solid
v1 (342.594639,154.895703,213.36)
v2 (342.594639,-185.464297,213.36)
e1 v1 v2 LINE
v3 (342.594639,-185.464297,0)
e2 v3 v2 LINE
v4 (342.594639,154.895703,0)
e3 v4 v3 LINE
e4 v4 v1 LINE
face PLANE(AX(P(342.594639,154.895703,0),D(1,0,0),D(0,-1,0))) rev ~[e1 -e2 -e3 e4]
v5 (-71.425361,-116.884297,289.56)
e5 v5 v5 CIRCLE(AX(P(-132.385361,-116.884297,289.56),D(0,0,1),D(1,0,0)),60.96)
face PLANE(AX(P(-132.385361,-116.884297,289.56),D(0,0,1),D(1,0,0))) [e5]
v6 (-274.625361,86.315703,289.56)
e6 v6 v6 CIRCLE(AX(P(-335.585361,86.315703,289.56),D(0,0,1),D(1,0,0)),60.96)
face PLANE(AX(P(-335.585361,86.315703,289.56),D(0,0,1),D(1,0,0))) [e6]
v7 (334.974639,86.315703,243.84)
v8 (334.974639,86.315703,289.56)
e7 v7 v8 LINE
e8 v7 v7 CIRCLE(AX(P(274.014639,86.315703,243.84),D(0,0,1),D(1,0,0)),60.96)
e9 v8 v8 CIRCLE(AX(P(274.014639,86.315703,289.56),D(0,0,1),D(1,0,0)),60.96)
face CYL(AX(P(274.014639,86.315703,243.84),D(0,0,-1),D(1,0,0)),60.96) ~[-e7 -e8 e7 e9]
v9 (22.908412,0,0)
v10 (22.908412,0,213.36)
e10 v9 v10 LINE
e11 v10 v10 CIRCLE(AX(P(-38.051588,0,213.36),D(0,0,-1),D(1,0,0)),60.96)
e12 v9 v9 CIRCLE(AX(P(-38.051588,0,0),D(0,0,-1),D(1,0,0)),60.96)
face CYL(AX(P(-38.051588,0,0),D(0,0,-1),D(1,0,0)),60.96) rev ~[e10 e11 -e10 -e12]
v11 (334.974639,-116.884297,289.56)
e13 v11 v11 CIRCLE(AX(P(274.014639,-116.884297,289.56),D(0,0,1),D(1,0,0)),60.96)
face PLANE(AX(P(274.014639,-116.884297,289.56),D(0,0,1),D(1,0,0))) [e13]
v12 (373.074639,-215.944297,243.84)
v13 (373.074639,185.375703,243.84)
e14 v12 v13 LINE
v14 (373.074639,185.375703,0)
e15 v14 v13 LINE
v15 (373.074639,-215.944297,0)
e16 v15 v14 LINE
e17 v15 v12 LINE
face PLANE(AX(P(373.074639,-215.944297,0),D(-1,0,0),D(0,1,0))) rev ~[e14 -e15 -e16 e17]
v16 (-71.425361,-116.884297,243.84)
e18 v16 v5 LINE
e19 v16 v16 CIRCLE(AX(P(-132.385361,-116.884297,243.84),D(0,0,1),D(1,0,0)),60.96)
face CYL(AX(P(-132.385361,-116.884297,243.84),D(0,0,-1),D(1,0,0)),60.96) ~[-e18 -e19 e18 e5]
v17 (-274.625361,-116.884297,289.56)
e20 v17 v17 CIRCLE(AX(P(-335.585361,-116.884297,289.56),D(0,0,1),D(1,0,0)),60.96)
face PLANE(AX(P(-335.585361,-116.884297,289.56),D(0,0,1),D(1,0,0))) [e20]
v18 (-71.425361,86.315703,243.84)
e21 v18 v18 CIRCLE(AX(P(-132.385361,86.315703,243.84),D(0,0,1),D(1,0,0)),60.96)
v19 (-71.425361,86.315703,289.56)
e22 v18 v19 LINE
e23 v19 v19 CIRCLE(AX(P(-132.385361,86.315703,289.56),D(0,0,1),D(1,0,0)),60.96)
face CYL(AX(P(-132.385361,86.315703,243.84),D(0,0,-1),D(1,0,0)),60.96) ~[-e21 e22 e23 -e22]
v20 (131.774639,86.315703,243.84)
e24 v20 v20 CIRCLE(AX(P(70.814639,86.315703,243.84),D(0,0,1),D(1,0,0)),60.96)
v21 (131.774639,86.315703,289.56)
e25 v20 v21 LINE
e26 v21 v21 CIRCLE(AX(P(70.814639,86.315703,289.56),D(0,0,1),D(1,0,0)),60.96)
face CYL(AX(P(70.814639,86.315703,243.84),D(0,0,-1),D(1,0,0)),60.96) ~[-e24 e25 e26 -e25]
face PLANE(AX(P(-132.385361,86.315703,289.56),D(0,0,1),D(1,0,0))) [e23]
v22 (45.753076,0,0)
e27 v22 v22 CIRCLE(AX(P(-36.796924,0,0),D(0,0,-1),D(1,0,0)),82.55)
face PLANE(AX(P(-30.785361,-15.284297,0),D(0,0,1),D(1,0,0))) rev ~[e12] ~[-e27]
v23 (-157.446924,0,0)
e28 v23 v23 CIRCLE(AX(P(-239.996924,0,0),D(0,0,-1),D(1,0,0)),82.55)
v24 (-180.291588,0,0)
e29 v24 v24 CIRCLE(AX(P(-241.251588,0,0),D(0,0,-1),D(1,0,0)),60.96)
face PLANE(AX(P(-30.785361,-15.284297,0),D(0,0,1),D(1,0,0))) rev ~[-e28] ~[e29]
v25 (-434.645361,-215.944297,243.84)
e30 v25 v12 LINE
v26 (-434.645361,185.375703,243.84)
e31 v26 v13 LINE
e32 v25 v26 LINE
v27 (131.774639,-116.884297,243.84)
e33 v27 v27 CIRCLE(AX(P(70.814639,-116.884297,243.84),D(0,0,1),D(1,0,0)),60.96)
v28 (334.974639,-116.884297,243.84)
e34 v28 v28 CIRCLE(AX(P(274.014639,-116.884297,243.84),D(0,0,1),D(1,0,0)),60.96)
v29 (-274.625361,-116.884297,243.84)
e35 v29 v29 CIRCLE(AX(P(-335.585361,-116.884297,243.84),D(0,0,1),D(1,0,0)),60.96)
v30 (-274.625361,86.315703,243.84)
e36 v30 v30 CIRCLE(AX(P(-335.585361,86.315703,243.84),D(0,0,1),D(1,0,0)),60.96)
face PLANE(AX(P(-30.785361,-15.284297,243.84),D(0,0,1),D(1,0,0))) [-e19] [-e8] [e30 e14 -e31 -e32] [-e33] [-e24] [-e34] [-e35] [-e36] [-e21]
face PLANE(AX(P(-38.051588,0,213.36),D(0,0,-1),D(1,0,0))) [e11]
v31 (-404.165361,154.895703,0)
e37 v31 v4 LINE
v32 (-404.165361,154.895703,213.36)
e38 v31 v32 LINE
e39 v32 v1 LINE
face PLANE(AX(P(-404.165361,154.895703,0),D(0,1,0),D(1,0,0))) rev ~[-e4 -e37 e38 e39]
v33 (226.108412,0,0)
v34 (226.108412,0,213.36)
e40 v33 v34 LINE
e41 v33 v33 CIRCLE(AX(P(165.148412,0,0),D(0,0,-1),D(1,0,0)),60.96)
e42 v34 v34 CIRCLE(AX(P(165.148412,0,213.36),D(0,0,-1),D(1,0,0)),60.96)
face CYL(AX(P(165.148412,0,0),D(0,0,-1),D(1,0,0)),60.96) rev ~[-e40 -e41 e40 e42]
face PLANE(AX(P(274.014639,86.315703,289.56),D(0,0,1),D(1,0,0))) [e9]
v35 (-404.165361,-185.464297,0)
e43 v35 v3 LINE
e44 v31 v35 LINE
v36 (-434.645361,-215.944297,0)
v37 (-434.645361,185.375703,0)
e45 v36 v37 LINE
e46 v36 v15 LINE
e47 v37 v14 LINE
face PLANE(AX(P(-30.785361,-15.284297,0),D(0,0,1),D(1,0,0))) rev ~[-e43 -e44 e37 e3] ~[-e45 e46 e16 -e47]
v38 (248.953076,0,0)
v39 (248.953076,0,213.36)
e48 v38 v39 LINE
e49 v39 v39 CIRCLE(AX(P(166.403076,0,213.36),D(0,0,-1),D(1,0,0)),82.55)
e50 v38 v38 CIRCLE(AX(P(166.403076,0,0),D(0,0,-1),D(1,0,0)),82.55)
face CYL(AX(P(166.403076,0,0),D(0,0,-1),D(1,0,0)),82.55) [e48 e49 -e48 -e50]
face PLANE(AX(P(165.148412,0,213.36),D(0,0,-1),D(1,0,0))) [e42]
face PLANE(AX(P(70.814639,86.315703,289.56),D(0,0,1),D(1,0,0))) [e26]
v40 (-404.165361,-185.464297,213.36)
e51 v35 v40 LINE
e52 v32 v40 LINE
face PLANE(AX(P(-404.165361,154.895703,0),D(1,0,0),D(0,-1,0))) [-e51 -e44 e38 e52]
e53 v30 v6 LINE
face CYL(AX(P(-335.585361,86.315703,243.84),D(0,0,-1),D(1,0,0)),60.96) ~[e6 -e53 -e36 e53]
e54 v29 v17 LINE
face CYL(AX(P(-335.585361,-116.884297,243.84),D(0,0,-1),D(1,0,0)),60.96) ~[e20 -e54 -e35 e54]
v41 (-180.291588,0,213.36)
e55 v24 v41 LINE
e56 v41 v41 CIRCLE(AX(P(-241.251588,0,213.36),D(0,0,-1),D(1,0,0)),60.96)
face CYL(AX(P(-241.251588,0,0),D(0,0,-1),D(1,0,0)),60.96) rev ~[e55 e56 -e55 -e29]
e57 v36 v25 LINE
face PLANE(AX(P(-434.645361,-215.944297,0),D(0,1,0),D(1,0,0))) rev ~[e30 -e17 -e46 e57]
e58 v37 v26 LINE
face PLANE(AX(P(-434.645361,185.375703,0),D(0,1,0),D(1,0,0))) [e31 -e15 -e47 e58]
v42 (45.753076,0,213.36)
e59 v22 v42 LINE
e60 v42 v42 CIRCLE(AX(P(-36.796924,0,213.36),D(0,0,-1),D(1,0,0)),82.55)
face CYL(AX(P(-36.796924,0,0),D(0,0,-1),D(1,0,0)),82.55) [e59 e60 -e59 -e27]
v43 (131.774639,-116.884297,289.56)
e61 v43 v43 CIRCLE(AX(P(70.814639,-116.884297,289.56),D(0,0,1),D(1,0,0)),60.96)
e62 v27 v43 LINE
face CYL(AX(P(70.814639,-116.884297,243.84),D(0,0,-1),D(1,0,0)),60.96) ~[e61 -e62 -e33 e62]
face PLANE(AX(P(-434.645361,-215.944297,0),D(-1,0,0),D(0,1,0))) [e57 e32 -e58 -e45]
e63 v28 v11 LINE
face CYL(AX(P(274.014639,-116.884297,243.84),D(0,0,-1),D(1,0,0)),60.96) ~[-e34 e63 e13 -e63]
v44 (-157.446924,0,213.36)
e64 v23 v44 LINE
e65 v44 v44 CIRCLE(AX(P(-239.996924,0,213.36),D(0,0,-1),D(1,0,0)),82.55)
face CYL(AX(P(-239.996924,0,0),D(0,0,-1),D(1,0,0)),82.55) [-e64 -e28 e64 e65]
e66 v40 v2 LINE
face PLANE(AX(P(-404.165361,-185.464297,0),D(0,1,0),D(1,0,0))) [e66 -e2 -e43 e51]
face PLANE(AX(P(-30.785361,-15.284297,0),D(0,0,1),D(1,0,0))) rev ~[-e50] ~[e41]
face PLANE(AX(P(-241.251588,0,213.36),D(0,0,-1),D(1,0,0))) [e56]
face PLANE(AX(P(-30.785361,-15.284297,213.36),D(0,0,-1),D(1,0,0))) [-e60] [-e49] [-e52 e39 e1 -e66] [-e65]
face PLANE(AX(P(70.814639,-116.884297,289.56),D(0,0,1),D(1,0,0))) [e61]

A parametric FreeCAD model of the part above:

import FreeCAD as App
import Part
import Sketcher

V = App.Vector
Q = App.Units.Quantity

doc = App.newDocument("Part")
body = doc.addObject("PartDesign::Body", "Body")

# Sketch on XY plane
sketch1 = body.newObject("Sketcher::SketchObject", "Sketch")
sketch1.AttachmentSupport = (doc.getObject("XY_Plane"), [""])
sketch1.MapMode = "FlatFace"
sketch1.addGeometry(Part.LineSegment(V(-435, 185, 0), V(-435, -216, 0)), False)
sketch1.addGeometry(Part.LineSegment(V(-435, -216, 0), V(373, -216, 0)), False)
sketch1.addGeometry(Part.LineSegment(V(373, -216, 0), V(373, 185, 0)), False)
sketch1.addGeometry(Part.LineSegment(V(373, 185, 0), V(-435, 185, 0)), False)
sketch1.addConstraint(Sketcher.Constraint("Coincident", 0, 2, 1, 1))
sketch1.addConstraint(Sketcher.Constraint("Coincident", 1, 2, 2, 1))
sketch1.addConstraint(Sketcher.Constraint("Coincident", 2, 2, 3, 1))
sketch1.addConstraint(Sketcher.Constraint("Coincident", 3, 2, 0, 1))
sketch1.addConstraint(Sketcher.Constraint("Vertical", 0))
sketch1.addConstraint(Sketcher.Constraint("Horizontal", 1))
sketch1.addConstraint(Sketcher.Constraint("Vertical", 2))
sketch1.addConstraint(Sketcher.Constraint("Horizontal", 3))
sketch1.addConstraint(Sketcher.Constraint("DistanceX", 1, 1, 1, 2, Q("31.8 in")))
sketch1.addConstraint(Sketcher.Constraint("DistanceY", 0, 2, 0, 1, Q("15.8 in")))
sketch1.addConstraint(Sketcher.Constraint("DistanceX", 0, 2, -1, 1, 434.645361))
sketch1.addConstraint(Sketcher.Constraint("DistanceY", 0, 2, -1, 1, 215.944297))
pad1 = body.newObject("PartDesign::Pad", "Pad")
pad1.Profile = sketch1
pad1.Length = Q("9.6 in")

# Sketch on XY plane
sketch2 = body.newObject("Sketcher::SketchObject", "Sketch001")
sketch2.AttachmentSupport = (doc.getObject("XY_Plane"), [""])
sketch2.MapMode = "FlatFace"
sketch2.AttachmentOffset = App.Placement(V(0, 0, 9.6 * 25.4), App.Rotation())
sketch2.addGeometry(Part.Circle(V(-336, -117, 0), V(0, 0, 1), 61), False)
sketch2.addGeometry(Part.Circle(V(-132, 86, 0), V(0, 0, 1), 61), False)
sketch2.addGeometry(Part.Circle(V(-132, -117, 0), V(0, 0, 1), 61), False)
sketch2.addGeometry(Part.Circle(V(71, 86, 0), V(0, 0, 1), 61), False)
sketch2.addGeometry(Part.Circle(V(274, -117, 0), V(0, 0, 1), 61), False)
sketch2.addGeometry(Part.Circle(V(71, -117, 0), V(0, 0, 1), 61), False)
sketch2.addGeometry(Part.Circle(V(274, 86, 0), V(0, 0, 1), 61), False)
sketch2.addGeometry(Part.Circle(V(-336, 86, 0), V(0, 0, 1), 61), False)
sketch2.addConstraint(Sketcher.Constraint("Equal", 0, 1))
sketch2.addConstraint(Sketcher.Constraint("Equal", 1, 2))
sketch2.addConstraint(Sketcher.Constraint("Equal", 2, 3))
sketch2.addConstraint(Sketcher.Constraint("Equal", 3, 4))
sketch2.addConstraint(Sketcher.Constraint("Equal", 4, 5))
sketch2.addConstraint(Sketcher.Constraint("Equal", 5, 6))
sketch2.addConstraint(Sketcher.Constraint("Equal", 6, 7))
sketch2.addConstraint(Sketcher.Constraint("Horizontal", 0, 3, 2, 3))
sketch2.addConstraint(Sketcher.Constraint("Horizontal", 1, 3, 3, 3))
sketch2.addConstraint(Sketcher.Constraint("Horizontal", 2, 3, 4, 3))
sketch2.addConstraint(Sketcher.Constraint("Horizontal", 4, 3, 5, 3))
sketch2.addConstraint(Sketcher.Constraint("Horizontal", 3, 3, 6, 3))
sketch2.addConstraint(Sketcher.Constraint("Horizontal", 6, 3, 7, 3))
sketch2.addConstraint(Sketcher.Constraint("Vertical", 1, 3, 2, 3))
sketch2.addConstraint(Sketcher.Constraint("Vertical", 3, 3, 5, 3))
sketch2.addConstraint(Sketcher.Constraint("Vertical", 4, 3, 6, 3))
sketch2.addConstraint(Sketcher.Constraint("Vertical", 0, 3, 7, 3))
sketch2.addConstraint(Sketcher.Constraint("Diameter", 0, Q("4.8 in")))
sketch2.addConstraint(Sketcher.Constraint("DistanceX", 0, 3, 1, 3, Q("8 in")))
sketch2.addConstraint(Sketcher.Constraint("DistanceY", 0, 3, 1, 3, Q("8 in")))
sketch2.addConstraint(Sketcher.Constraint("DistanceX", 1, 3, 3, 3, Q("8 in")))
sketch2.addConstraint(Sketcher.Constraint("DistanceX", 3, 3, 4, 3, Q("8 in")))
sketch2.addConstraint(Sketcher.Constraint("DistanceX", 0, 3, -1, 1, 335.585361))
sketch2.addConstraint(Sketcher.Constraint("DistanceY", 0, 3, -1, 1, 116.884297))
pad2 = body.newObject("PartDesign::Pad", "Pad001")
pad2.Profile = sketch2
pad2.Length = Q("1.8 in")

# Sketch on XY plane
sketch3 = body.newObject("Sketcher::SketchObject", "Sketch002")
sketch3.AttachmentSupport = (doc.getObject("XY_Plane"), [""])
sketch3.MapMode = "FlatFace"
sketch3.addGeometry(Part.LineSegment(V(-404, -185, 0), V(-404, 155, 0)), False)
sketch3.addGeometry(Part.LineSegment(V(-404, 155, 0), V(343, 155, 0)), False)
sketch3.addGeometry(Part.LineSegment(V(343, 155, 0), V(343, -185, 0)), False)
sketch3.addGeometry(Part.LineSegment(V(343, -185, 0), V(-404, -185, 0)), False)
sketch3.addGeometry(Part.Circle(V(-240, 0, 0), V(0, 0, 1), 83), False)
sketch3.addGeometry(Part.Circle(V(-37, 0, 0), V(0, 0, 1), 83), False)
sketch3.addGeometry(Part.Circle(V(166, 0, 0), V(0, 0, 1), 83), False)
sketch3.addConstraint(Sketcher.Constraint("Coincident", 0, 2, 1, 1))
sketch3.addConstraint(Sketcher.Constraint("Coincident", 1, 2, 2, 1))
sketch3.addConstraint(Sketcher.Constraint("Coincident", 2, 2, 3, 1))
sketch3.addConstraint(Sketcher.Constraint("Coincident", 3, 2, 0, 1))
sketch3.addConstraint(Sketcher.Constraint("Vertical", 0))
sketch3.addConstraint(Sketcher.Constraint("Horizontal", 1))
sketch3.addConstraint(Sketcher.Constraint("Vertical", 2))
sketch3.addConstraint(Sketcher.Constraint("Horizontal", 3))
sketch3.addConstraint(Sketcher.Constraint("Equal", 4, 5))
sketch3.addConstraint(Sketcher.Constraint("Equal", 5, 6))
sketch3.addConstraint(Sketcher.Constraint("PointOnObject", 4, 3, -1))
sketch3.addConstraint(Sketcher.Constraint("PointOnObject", 5, 3, -1))
sketch3.addConstraint(Sketcher.Constraint("PointOnObject", 6, 3, -1))
sketch3.addConstraint(Sketcher.Constraint("Diameter", 4, Q("6.5 in")))
sketch3.addConstraint(Sketcher.Constraint("DistanceX", 1, 1, 1, 2, Q("29.4 in")))
sketch3.addConstraint(Sketcher.Constraint("DistanceY", 0, 1, 0, 2, Q("13.4 in")))
sketch3.addConstraint(Sketcher.Constraint("DistanceX", 4, 3, 5, 3, Q("8 in")))
sketch3.addConstraint(Sketcher.Constraint("DistanceX", 5, 3, 6, 3, Q("8 in")))
sketch3.addConstraint(Sketcher.Constraint("DistanceX", 0, 2, -1, 1, 404.165361))
sketch3.addConstraint(Sketcher.Constraint("DistanceX", 4, 3, -1, 1, 239.996924))
sketch3.addConstraint(Sketcher.Constraint("DistanceY", -1, 1, 0, 2, 154.895703))
pocket1 = body.newObject("PartDesign::Pocket", "Pocket")
pocket1.Profile = sketch3
pocket1.Length = Q("8.4 in")
pocket1.Reversed = True

# Sketch on XY plane
sketch4 = body.newObject("Sketcher::SketchObject", "Sketch003")
sketch4.AttachmentSupport = (doc.getObject("XY_Plane"), [""])
sketch4.MapMode = "FlatFace"
sketch4.addGeometry(Part.Circle(V(165, 0, 0), V(0, 0, 1), 61), False)
sketch4.addGeometry(Part.Circle(V(-38, 0, 0), V(0, 0, 1), 61), False)
sketch4.addGeometry(Part.Circle(V(-241, 0, 0), V(0, 0, 1), 61), False)
sketch4.addConstraint(Sketcher.Constraint("Equal", 0, 1))
sketch4.addConstraint(Sketcher.Constraint("Equal", 1, 2))
sketch4.addConstraint(Sketcher.Constraint("PointOnObject", 0, 3, -1))
sketch4.addConstraint(Sketcher.Constraint("PointOnObject", 1, 3, -1))
sketch4.addConstraint(Sketcher.Constraint("PointOnObject", 2, 3, -1))
sketch4.addConstraint(Sketcher.Constraint("Diameter", 0, Q("4.8 in")))
sketch4.addConstraint(Sketcher.Constraint("DistanceX", 1, 3, 0, 3, Q("8 in")))
sketch4.addConstraint(Sketcher.Constraint("DistanceX", 2, 3, 1, 3, Q("8 in")))
sketch4.addConstraint(Sketcher.Constraint("DistanceX", -1, 1, 0, 3, 165.148412))
pocket2 = body.newObject("PartDesign::Pocket", "Pocket001")
pocket2.Profile = sketch4
pocket2.Length = Q("8.4 in")
pocket2.Reversed = True

doc.recompute()
